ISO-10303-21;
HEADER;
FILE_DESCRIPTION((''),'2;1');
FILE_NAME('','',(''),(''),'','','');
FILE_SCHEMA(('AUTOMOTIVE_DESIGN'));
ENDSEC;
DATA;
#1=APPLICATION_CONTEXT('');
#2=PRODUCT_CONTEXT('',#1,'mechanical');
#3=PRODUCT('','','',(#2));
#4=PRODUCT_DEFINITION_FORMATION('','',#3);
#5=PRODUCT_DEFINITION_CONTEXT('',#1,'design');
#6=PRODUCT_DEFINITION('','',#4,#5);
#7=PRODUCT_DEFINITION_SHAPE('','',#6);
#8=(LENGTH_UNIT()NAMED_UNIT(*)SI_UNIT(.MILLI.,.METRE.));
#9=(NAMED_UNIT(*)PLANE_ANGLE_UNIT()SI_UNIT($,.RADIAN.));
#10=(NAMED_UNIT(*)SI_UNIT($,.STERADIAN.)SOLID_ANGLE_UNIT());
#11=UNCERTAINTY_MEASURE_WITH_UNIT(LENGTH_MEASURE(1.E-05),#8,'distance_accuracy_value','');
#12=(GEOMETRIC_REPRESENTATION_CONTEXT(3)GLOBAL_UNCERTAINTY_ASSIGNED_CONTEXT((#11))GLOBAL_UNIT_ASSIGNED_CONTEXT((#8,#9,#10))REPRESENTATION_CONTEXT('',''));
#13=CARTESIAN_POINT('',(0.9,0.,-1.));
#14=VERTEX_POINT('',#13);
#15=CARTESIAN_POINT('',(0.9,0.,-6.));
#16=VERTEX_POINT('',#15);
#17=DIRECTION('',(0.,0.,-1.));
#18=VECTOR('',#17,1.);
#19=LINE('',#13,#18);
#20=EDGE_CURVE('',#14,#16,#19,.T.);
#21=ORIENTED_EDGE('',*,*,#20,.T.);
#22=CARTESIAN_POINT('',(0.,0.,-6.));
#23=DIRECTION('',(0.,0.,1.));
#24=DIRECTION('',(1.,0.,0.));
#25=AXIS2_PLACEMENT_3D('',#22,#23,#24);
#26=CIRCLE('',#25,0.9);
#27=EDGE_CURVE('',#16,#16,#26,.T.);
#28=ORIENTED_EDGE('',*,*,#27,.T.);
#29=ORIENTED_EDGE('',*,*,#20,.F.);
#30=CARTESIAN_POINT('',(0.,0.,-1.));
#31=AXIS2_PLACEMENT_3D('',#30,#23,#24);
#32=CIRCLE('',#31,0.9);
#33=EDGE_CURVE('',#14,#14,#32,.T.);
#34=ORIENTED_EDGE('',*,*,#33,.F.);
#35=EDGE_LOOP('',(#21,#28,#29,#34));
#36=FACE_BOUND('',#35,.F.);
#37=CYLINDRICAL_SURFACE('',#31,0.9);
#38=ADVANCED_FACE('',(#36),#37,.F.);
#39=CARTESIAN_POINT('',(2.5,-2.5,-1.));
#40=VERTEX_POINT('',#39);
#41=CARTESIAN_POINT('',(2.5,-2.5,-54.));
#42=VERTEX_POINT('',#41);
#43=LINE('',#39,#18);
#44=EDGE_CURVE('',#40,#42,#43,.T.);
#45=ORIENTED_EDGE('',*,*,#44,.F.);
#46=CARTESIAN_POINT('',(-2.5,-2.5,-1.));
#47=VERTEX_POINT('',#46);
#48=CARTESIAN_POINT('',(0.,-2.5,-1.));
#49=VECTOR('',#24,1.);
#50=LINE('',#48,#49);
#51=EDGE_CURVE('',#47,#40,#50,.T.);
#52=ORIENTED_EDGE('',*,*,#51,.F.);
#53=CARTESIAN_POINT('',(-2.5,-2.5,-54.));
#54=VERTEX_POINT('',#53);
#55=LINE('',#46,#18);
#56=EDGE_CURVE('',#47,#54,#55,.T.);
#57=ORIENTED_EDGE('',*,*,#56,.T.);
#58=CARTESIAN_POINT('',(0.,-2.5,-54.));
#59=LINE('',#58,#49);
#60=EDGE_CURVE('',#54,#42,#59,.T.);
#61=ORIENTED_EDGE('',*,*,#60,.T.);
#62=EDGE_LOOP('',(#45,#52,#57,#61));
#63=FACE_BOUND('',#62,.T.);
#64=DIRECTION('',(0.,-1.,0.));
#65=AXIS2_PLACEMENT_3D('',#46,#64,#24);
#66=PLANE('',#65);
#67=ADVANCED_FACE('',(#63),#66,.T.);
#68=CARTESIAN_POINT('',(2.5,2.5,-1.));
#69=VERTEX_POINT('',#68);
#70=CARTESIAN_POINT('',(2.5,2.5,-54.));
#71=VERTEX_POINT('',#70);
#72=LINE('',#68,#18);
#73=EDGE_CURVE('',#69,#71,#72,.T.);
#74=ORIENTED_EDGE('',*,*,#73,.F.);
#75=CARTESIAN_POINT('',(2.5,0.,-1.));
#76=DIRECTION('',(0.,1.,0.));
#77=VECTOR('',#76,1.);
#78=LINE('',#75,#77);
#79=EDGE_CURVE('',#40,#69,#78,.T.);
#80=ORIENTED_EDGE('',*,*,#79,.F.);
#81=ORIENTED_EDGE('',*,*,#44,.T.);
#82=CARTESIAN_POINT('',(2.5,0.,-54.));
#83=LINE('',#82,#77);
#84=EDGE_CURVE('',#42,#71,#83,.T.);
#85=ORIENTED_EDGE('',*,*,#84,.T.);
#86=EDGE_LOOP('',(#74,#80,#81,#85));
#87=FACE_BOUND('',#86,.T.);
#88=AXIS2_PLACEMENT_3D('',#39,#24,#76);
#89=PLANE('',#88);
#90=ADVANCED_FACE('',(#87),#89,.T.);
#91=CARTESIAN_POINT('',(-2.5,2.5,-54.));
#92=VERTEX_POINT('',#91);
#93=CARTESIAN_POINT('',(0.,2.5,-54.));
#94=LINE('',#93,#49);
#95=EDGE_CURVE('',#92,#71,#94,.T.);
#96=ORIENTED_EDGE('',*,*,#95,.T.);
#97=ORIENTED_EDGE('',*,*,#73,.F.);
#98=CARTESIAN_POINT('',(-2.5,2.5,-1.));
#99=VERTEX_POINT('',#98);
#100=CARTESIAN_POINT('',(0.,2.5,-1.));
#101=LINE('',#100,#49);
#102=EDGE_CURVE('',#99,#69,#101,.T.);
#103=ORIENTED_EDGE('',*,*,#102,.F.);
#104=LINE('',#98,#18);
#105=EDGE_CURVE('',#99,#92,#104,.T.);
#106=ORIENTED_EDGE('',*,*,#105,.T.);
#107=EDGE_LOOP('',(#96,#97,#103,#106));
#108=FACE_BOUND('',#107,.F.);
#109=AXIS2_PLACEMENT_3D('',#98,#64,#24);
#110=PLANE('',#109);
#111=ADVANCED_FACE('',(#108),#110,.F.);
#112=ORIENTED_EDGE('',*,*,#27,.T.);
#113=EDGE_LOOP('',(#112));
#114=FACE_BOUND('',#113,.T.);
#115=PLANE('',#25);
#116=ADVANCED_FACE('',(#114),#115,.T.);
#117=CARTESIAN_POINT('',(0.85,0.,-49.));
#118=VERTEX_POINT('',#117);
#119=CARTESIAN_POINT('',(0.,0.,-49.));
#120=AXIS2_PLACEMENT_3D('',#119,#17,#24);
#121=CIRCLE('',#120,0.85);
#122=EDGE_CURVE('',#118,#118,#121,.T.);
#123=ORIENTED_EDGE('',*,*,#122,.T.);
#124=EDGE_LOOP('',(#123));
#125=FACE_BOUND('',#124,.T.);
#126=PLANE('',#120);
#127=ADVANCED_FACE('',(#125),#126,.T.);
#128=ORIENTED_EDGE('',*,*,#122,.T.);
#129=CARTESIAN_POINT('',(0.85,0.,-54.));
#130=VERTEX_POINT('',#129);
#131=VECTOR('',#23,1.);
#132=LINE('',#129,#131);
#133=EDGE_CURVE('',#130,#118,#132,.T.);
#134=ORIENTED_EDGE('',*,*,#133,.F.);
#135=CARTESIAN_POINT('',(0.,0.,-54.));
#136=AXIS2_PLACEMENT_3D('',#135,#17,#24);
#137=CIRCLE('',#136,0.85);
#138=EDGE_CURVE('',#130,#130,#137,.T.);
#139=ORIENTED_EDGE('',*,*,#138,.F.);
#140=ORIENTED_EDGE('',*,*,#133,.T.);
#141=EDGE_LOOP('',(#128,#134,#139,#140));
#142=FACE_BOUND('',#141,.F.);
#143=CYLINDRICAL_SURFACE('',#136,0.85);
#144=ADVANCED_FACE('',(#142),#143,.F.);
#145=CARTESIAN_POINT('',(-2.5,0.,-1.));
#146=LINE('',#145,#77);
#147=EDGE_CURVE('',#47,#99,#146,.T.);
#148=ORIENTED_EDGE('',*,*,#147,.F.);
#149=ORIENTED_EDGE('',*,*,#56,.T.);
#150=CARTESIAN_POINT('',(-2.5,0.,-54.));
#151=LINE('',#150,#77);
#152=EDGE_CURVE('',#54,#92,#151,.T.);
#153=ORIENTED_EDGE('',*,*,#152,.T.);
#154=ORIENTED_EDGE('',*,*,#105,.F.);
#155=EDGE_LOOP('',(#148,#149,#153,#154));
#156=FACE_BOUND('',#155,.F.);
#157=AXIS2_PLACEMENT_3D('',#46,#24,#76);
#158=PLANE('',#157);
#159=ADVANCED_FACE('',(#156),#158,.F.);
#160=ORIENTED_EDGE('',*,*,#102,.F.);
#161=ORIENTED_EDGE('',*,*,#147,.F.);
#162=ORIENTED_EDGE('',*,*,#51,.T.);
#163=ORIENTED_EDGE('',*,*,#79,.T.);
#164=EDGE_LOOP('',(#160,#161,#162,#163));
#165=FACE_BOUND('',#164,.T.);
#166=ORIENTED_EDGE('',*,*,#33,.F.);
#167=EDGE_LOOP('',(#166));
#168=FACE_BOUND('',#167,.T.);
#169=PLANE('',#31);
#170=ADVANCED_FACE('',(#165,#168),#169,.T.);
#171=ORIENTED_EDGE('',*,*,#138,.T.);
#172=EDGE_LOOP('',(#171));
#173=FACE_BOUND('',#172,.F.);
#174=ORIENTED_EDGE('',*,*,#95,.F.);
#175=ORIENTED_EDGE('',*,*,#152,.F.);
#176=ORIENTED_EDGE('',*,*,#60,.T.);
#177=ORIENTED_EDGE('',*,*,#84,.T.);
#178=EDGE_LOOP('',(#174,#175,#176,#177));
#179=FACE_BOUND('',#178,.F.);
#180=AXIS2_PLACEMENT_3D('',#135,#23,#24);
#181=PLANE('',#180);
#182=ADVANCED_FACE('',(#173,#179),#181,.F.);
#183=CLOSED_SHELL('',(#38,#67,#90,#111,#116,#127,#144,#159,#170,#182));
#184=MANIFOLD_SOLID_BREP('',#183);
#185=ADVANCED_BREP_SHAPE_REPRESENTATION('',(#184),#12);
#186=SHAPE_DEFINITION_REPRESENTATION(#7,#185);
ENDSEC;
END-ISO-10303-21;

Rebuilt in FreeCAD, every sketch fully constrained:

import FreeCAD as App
import Part
import Sketcher

V = App.Vector

doc = App.newDocument("Part")
body = doc.addObject("PartDesign::Body", "Body")

# Sketch on XY plane
sketch1 = body.newObject("Sketcher::SketchObject", "Sketch")
sketch1.AttachmentSupport = (doc.getObject("XY_Plane"), [""])
sketch1.MapMode = "FlatFace"
sketch1.AttachmentOffset = App.Placement(V(0, 0, -1), App.Rotation())
sketch1.addGeometry([
    Part.LineSegment(V(-2, 2, 0), V(-2, -2, 0)),
    Part.LineSegment(V(-2, -2, 0), V(2, -2, 0)),
    Part.LineSegment(V(2, -2, 0), V(2, 2, 0)),
    Part.LineSegment(V(2, 2, 0), V(-2, 2, 0)),
], False)
sketch1.addConstraint([
    Sketcher.Constraint("Coincident", 0, 2, 1, 1),
    Sketcher.Constraint("Coincident", 1, 2, 2, 1),
    Sketcher.Constraint("Coincident", 2, 2, 3, 1),
    Sketcher.Constraint("Coincident", 3, 2, 0, 1),
    Sketcher.Constraint("Vertical", 0),
    Sketcher.Constraint("Horizontal", 1),
    Sketcher.Constraint("Vertical", 2),
    Sketcher.Constraint("Horizontal", 3),
    Sketcher.Constraint("Symmetric", 0, 2, 2, 2, -1, 1),
    Sketcher.Constraint("Equal", 3, 0),
    Sketcher.Constraint("DistanceX", 1, 1, 1, 2, 5.0),
])
pad1 = body.newObject("PartDesign::Pad", "Pad")
pad1.Profile = sketch1
pad1.Length = 53
pad1.Reversed = True

# Sketch on XY plane
sketch2 = body.newObject("Sketcher::SketchObject", "Sketch001")
sketch2.AttachmentSupport = (doc.getObject("XY_Plane"), [""])
sketch2.MapMode = "FlatFace"
sketch2.AttachmentOffset = App.Placement(V(0, 0, -1), App.Rotation())
sketch2.addGeometry(Part.Circle(V(0, 0, 0), V(0, 0, 1), 0.9), False)
sketch2.addConstraint([
    Sketcher.Constraint("Coincident", 0, 3, -1, 1),
    Sketcher.Constraint("Diameter", 0, 1.8),
])
pocket1 = body.newObject("PartDesign::Pocket", "Pocket")
pocket1.Profile = sketch2
pocket1.Length = 5

# Sketch on XY plane
sketch3 = body.newObject("Sketcher::SketchObject", "Sketch002")
sketch3.AttachmentSupport = (doc.getObject("XY_Plane"), [""])
sketch3.MapMode = "FlatFace"
sketch3.AttachmentOffset = App.Placement(V(0, 0, -54), App.Rotation())
sketch3.addGeometry(Part.Circle(V(0, 0, 0), V(0, 0, 1), 0.8), False)
sketch3.addConstraint([
    Sketcher.Constraint("Coincident", 0, 3, -1, 1),
    Sketcher.Constraint("Diameter", 0, 1.7),
])
pocket2 = body.newObject("PartDesign::Pocket", "Pocket001")
pocket2.Profile = sketch3
pocket2.Length = 5
pocket2.Reversed = True

doc.recompute()
